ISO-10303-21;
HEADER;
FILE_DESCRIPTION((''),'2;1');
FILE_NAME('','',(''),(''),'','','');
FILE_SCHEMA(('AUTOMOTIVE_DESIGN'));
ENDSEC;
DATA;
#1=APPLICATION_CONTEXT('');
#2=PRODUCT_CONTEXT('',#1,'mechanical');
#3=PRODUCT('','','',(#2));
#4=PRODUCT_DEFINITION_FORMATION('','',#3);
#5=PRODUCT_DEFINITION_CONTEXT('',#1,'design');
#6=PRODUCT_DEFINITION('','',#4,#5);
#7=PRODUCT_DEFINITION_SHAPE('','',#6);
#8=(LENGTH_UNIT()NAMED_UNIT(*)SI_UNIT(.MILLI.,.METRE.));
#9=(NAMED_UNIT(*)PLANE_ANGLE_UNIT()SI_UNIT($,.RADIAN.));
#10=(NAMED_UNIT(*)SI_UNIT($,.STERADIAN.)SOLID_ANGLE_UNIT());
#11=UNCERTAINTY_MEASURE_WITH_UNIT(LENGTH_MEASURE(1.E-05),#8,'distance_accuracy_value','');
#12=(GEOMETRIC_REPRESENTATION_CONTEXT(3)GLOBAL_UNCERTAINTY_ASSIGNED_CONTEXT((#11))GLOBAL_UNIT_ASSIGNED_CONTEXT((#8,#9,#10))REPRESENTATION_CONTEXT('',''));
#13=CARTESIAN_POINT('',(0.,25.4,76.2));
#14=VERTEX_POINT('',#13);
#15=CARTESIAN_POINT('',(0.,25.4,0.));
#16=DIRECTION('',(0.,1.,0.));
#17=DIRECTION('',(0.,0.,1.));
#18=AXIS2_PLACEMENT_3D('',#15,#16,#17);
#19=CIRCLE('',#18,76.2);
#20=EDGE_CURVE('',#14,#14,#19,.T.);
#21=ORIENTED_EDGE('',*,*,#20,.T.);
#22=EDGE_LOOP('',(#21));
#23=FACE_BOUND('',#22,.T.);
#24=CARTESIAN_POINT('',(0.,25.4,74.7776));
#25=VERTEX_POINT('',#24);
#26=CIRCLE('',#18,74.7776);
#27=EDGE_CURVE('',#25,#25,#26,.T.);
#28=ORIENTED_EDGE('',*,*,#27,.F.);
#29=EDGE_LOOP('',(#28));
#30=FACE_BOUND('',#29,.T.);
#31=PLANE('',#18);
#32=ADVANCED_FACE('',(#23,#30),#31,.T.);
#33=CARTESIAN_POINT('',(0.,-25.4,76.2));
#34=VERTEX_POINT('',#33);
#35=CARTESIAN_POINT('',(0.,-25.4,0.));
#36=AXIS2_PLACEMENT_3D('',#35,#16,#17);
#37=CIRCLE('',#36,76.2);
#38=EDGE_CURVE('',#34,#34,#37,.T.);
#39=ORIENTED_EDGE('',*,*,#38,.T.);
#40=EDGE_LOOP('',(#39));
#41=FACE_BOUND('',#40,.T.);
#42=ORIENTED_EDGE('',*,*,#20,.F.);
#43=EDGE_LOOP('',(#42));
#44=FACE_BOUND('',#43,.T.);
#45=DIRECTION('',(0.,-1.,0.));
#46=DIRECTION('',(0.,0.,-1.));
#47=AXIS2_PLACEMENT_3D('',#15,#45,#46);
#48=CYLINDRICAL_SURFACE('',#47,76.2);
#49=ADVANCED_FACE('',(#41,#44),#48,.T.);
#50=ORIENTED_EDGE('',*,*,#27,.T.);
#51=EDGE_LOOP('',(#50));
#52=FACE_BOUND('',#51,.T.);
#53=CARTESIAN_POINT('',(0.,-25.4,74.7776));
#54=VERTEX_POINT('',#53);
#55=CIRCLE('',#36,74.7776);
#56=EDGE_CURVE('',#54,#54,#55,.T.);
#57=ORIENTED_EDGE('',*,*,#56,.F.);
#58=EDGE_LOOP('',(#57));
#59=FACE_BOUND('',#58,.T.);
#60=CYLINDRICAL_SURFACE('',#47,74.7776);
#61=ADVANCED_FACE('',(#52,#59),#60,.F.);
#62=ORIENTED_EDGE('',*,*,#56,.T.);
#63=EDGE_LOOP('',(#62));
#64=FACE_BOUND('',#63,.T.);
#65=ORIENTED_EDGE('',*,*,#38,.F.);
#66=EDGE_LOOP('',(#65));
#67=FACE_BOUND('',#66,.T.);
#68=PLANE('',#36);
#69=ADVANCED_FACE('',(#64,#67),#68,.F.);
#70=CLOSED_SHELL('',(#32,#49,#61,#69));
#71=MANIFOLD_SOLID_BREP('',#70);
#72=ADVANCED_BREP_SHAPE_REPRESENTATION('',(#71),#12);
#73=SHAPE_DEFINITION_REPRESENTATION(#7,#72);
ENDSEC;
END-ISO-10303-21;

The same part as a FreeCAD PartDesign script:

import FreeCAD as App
import Part
import Sketcher

V = App.Vector
Q = App.Units.Quantity

doc = App.newDocument("Part")
body = doc.addObject("PartDesign::Body", "Body")

# Sketch on XZ plane
sketch1 = body.newObject("Sketcher::SketchObject", "Sketch")
sketch1.AttachmentSupport = (doc.getObject("XZ_Plane"), [""])
sketch1.MapMode = "FlatFace"
sketch1.addGeometry([
    Part.Circle(V(0, 0, 0), V(0, 0, 1), 76.2),
    Part.Circle(V(0, 0, 0), V(0, 0, 1), 74.7776),
], False)
sketch1.addConstraint([
    Sketcher.Constraint("Coincident", 0, 3, -1, 1),
    Sketcher.Constraint("Coincident", 1, 3, -1, 1),
    Sketcher.Constraint("Diameter", 0, Q("6 in")),
    Sketcher.Constraint("Diameter", 1, Q("5.888 in")),
])
pad1 = body.newObject("PartDesign::Pad", "Pad")
pad1.Profile = sketch1
pad1.Length = Q("2 in")
pad1.Midplane = True

doc.recompute()
